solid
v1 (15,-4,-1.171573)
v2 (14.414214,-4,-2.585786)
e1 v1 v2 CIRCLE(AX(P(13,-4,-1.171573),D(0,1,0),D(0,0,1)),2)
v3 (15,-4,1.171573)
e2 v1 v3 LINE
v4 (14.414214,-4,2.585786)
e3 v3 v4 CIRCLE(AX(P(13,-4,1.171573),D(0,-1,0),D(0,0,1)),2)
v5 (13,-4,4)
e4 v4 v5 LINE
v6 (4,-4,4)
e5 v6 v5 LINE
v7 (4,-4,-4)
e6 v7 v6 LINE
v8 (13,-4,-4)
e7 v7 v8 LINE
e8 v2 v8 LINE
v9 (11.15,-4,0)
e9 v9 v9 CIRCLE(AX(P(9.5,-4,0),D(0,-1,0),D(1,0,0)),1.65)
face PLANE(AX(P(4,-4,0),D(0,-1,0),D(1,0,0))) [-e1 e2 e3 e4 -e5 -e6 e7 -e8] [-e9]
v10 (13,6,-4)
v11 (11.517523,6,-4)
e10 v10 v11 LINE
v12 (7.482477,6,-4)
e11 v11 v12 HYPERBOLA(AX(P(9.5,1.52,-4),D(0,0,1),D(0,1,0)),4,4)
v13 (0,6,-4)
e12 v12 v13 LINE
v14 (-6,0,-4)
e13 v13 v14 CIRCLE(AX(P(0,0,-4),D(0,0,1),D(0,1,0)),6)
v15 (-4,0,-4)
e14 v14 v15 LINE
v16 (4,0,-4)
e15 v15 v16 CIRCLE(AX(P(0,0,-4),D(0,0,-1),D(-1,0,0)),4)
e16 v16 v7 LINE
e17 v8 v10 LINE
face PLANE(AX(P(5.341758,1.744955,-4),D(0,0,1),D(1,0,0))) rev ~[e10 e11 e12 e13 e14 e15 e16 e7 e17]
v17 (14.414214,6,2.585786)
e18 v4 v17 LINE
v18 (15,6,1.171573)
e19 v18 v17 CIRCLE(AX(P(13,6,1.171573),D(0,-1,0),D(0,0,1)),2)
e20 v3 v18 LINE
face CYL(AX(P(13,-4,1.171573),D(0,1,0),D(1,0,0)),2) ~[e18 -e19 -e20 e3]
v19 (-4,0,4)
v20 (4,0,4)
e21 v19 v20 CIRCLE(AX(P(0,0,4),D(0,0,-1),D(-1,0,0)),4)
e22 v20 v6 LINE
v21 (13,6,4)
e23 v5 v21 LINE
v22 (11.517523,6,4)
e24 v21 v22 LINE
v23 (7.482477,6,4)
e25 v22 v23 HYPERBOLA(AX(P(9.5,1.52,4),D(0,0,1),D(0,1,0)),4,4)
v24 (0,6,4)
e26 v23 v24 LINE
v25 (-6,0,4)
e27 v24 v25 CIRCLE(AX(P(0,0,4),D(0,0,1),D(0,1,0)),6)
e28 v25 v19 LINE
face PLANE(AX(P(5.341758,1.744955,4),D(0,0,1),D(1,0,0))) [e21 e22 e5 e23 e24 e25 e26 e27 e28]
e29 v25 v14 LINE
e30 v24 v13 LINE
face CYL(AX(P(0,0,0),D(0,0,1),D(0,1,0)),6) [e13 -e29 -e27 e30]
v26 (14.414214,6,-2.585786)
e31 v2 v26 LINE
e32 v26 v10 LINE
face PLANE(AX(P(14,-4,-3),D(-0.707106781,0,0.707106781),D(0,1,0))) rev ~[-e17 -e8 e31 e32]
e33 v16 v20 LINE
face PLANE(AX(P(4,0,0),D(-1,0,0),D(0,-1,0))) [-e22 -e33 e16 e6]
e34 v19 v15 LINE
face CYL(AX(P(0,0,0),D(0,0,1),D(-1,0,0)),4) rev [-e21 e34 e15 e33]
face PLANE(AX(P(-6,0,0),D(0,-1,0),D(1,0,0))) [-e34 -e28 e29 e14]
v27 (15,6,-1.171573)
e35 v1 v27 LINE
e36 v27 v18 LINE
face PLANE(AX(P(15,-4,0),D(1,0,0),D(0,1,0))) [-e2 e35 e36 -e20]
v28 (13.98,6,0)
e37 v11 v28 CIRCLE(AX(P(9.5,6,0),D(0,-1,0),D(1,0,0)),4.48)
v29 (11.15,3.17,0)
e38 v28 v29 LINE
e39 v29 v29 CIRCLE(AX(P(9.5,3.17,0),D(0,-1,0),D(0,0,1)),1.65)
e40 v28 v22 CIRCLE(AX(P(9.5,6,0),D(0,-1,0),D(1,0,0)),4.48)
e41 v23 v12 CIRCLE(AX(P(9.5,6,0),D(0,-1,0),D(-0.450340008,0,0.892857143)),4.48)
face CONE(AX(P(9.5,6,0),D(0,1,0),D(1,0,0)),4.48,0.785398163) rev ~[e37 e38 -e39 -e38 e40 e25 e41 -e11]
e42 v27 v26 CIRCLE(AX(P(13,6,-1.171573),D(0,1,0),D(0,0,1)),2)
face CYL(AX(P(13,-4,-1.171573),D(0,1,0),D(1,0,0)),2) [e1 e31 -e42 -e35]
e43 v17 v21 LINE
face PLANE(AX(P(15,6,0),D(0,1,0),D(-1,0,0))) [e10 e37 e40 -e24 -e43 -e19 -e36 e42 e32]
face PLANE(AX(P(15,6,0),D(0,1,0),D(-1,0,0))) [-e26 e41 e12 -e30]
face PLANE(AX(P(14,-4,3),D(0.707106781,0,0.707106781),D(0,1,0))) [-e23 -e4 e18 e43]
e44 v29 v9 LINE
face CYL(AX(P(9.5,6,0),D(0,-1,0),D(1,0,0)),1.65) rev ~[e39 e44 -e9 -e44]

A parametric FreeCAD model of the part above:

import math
import FreeCAD as App
import Part
import Sketcher

V = App.Vector


def edges_at(feature, points):
    """Names of the edges that pass closest to the given points."""
    edges = feature.Shape.Edges
    near = lambda p: min(range(len(edges)), key=lambda i: edges[i].distToShape(Part.Vertex(*p))[0])
    return sorted({f"Edge{near(p) + 1}" for p in points})

doc = App.newDocument("Part")
body = doc.addObject("PartDesign::Body", "Body")

# Sketch on XY plane
sketch1 = body.newObject("Sketcher::SketchObject", "Sketch")
sketch1.AttachmentSupport = (doc.getObject("XY_Plane"), [""])
sketch1.MapMode = "FlatFace"
sketch1.addGeometry([
    Part.ArcOfCircle(Part.Circle(V(0, 0, 0), V(0, 0, 1), 4), math.radians(0), math.radians(180)),  # 0
    Part.LineSegment(V(4, 0, 0), V(4, -4, 0)),  # 1
    Part.LineSegment(V(4, -4, 0), V(15, -4, 0)),  # 2
    Part.LineSegment(V(15, -4, 0), V(15, 6, 0)),  # 3
    Part.LineSegment(V(15, 6, 0), V(0, 6, 0)),  # 4
    Part.ArcOfCircle(Part.Circle(V(0, 0, 0), V(0, 0, 1), 6), math.radians(90), math.radians(180)),  # 5
    Part.LineSegment(V(-6, 0, 0), V(-4, 0, 0)),  # 6
], False)
sketch1.addConstraint([
    Sketcher.Constraint("Tangent", 0, 1, 1, 1),
    Sketcher.Constraint("Coincident", 1, 2, 2, 1),
    Sketcher.Constraint("Coincident", 2, 2, 3, 1),
    Sketcher.Constraint("Coincident", 3, 2, 4, 1),
    Sketcher.Constraint("Tangent", 4, 2, 5, 1),
    Sketcher.Constraint("Coincident", 5, 2, 6, 1),
    Sketcher.Constraint("Coincident", 6, 2, 0, 2),
    Sketcher.Constraint("Vertical", 1),
    Sketcher.Constraint("Horizontal", 2),
    Sketcher.Constraint("Vertical", 3),
    Sketcher.Constraint("Horizontal", 4),
    Sketcher.Constraint("Horizontal", 6),
    Sketcher.Constraint("Coincident", 0, 3, -1, 1),
    Sketcher.Constraint("Coincident", 5, 3, -1, 1),
    Sketcher.Constraint("PointOnObject", 5, 2, -1),
    Sketcher.Constraint("Radius", 0, 4.0),
    Sketcher.Constraint("Radius", 5, 6.0),
    Sketcher.Constraint("DistanceX", 2, 1, 2, 2, 11.0),
    Sketcher.Constraint("DistanceY", 1, 2, 1, 1, 4.0),
])
pad1 = body.newObject("PartDesign::Pad", "Pad")
pad1.Profile = sketch1
pad1.Length = 8
pad1.Midplane = True

# Sketch on XZ plane
sketch2 = body.newObject("Sketcher::SketchObject", "Sketch001")
sketch2.AttachmentSupport = (doc.getObject("XZ_Plane"), [""])
sketch2.MapMode = "FlatFace"
sketch2.AttachmentOffset = App.Placement(V(0, 0, -6), App.Rotation())
sketch2.addGeometry(Part.Circle(V(9.5, 0, 0), V(0, 0, 1), 1.6), False)
sketch2.addConstraint([
    Sketcher.Constraint("PointOnObject", 0, 3, -1),
    Sketcher.Constraint("Diameter", 0, 3.3),
    Sketcher.Constraint("DistanceX", -1, 1, 0, 3, 9.5),
])
doc.recompute()
hole = body.newObject("PartDesign::Hole", "Hole")
hole.Profile = sketch2
hole.ThreadType = "None"
hole.Diameter = 3.3
hole.DepthType = "ThroughAll"
hole.HoleCutType = "Countersink"
hole.HoleCutDiameter = 8.96
hole.HoleCutCountersinkAngle = 90
hole.Reversed = True
doc.recompute()

chamfer = body.newObject("PartDesign::Chamfer", "Chamfer")
chamfer.Base = (hole, edges_at(hole, [(15, 1, -4), (15, 1, 4)]))
chamfer.Size = 2
doc.recompute()

fillet = body.newObject("PartDesign::Fillet", "Fillet")
fillet.Base = (chamfer, edges_at(chamfer, [(15, 1, 2), (15, 1, -2)]))
fillet.Radius = 2

doc.recompute()
